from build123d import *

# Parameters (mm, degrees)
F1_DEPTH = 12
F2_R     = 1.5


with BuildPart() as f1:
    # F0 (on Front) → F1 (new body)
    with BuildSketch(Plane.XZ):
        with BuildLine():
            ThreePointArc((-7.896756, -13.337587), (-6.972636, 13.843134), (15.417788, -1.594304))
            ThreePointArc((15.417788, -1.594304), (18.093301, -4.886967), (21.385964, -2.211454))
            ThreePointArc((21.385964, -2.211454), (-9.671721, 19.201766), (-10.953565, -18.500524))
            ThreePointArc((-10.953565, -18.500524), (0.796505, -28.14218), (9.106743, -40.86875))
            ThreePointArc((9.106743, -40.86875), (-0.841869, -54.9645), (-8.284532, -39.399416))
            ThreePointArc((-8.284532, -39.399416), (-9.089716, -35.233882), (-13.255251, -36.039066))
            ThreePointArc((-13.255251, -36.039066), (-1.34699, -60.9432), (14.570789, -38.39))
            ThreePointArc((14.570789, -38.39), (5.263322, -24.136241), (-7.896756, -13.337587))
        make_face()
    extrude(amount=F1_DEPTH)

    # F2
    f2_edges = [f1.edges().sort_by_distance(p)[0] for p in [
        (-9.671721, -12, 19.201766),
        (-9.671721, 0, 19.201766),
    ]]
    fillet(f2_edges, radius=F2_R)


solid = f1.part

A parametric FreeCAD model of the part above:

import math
import FreeCAD as App
import Part
import Sketcher
from FreeCAD import Vector


def edges_at(feature, points):
    """Names of the edges that pass closest to the given points."""
    edges = feature.Shape.Edges
    near = lambda p: min(range(len(edges)), key=lambda i: edges[i].distToShape(Part.Vertex(*p))[0])
    return sorted({f"Edge{near(p) + 1}" for p in points})

doc = App.newDocument("Part")
params = doc.addObject("Spreadsheet::Sheet", "Params")
for row, (alias, value) in enumerate([
    ("sketch1_radius", "3 mm"),
    ("sketch1_radius2", "10 mm"),
    ("sketch1_radius3", "56.000001 mm"),
    ("sketch1_radius4", "15.5 mm"),
    ("pad1_length", "12 mm"),
    ("fillet_radius", "1.5 mm"),
], start=1):
    params.set(f"A{row}", alias)
    params.set(f"B{row}", "=" + value)
    params.setAlias(f"B{row}", alias)

body = doc.addObject("PartDesign::Body", "Body")

# Sketch on XZ plane
sketch1 = doc.addObject("Sketcher::SketchObject", "Sketch")
body.addObject(sketch1)
sketch1.AttachmentSupport = (doc.XZ_Plane, [""])
sketch1.MapMode = "FlatFace"
sketch1.addGeometry(Part.ArcOfCircle(Part.Circle(Vector(0, 0.000001, 0), Vector(0, 0, 1), 15.5), math.radians(-5.903791), math.radians(239.371591)), False)
sketch1.addGeometry(Part.ArcOfCircle(Part.Circle(Vector(18.401876, -1.902879, 0), Vector(0, 0, 1), 3), math.radians(174.09621), math.radians(354.09621)), False)
sketch1.addGeometry(Part.ArcOfCircle(Part.Circle(Vector(0, 0, 0), Vector(0, 0, 1), 21.5), math.radians(-5.903791), math.radians(239.37159)), False)
sketch1.addGeometry(Part.ArcOfCircle(Part.Circle(Vector(-36.426977, -61.525001, 0), Vector(0, 0, 1), 50.000004), math.radians(24.401294), math.radians(59.371587)), False)
sketch1.addGeometry(Part.ArcOfCircle(Part.Circle(Vector(0, -45, 0), Vector(0, 0, 1), 10), math.radians(145.940164), math.radians(384.401294)), False)
sketch1.addGeometry(Part.ArcOfCircle(Part.Circle(Vector(-10.769892, -37.719241, 0), Vector(0, 0, 1), 3), math.radians(-34.05983), math.radians(145.940165)), False)
sketch1.addGeometry(Part.ArcOfCircle(Part.Circle(Vector(0, -45, 0), Vector(0, 0, 1), 16), math.radians(145.940165), math.radians(384.401294)), False)
sketch1.addGeometry(Part.ArcOfCircle(Part.Circle(Vector(-36.426975, -61.525, 0), Vector(0, 0, 1), 56.000001), math.radians(24.401293), math.radians(59.371588)), False)
sketch1.addConstraint(Sketcher.Constraint("Tangent", 0, 1, 1, 1))
sketch1.addConstraint(Sketcher.Constraint("Tangent", 1, 2, 2, 1))
sketch1.addConstraint(Sketcher.Constraint("Tangent", 2, 2, 3, 2))
sketch1.addConstraint(Sketcher.Constraint("Tangent", 3, 1, 4, 2))
sketch1.addConstraint(Sketcher.Constraint("Tangent", 4, 1, 5, 1))
sketch1.addConstraint(Sketcher.Constraint("Tangent", 5, 2, 6, 1))
sketch1.addConstraint(Sketcher.Constraint("Tangent", 6, 2, 7, 1))
sketch1.addConstraint(Sketcher.Constraint("Tangent", 7, 2, 0, 2))
sketch1.addConstraint(Sketcher.Constraint("Coincident", 0, 3, -1, 1))
sketch1.addConstraint(Sketcher.Constraint("Coincident", 2, 3, -1, 1))
sketch1.addConstraint(Sketcher.Constraint("Coincident", 6, 3, 4, 3))
sketch1.addConstraint(Sketcher.Constraint("Coincident", 7, 3, 3, 3))
sketch1.addConstraint(Sketcher.Constraint("PointOnObject", 4, 3, -2))
sketch1.addConstraint(Sketcher.Constraint("Radius", 1, 3.0))
sketch1.addConstraint(Sketcher.Constraint("Radius", 4, 10.0))
sketch1.addConstraint(Sketcher.Constraint("Radius", 7, 56.000001))
sketch1.addConstraint(Sketcher.Constraint("Radius", 0, 15.5))
sketch1.addConstraint(Sketcher.Constraint("DistanceY", 4, 3, -1, 1, 45.0))
sketch1.addConstraint(Sketcher.Constraint("DistanceY", 1, 3, -1, 1, 1.902879))
sketch1.addConstraint(Sketcher.Constraint("DistanceX", 5, 3, -1, 1, 10.769892))
sketch1.setExpression("Constraints[13]", "Params.sketch1_radius")
sketch1.setExpression("Constraints[14]", "Params.sketch1_radius2")
sketch1.setExpression("Constraints[15]", "Params.sketch1_radius3")
sketch1.setExpression("Constraints[16]", "Params.sketch1_radius4")
pad1 = doc.addObject("PartDesign::Pad", "Pad")
body.addObject(pad1)
pad1.Profile = sketch1
pad1.setExpression("Length", "Params.pad1_length")
doc.recompute()

fillet = doc.addObject("PartDesign::Fillet", "Fillet")
body.addObject(fillet)
fillet.Base = (pad1, edges_at(pad1, [(-9.672, -12, 19.202), (-9.672, 0, 19.202)]))
fillet.setExpression("Radius", "Params.fillet_radius")

doc.recompute()
